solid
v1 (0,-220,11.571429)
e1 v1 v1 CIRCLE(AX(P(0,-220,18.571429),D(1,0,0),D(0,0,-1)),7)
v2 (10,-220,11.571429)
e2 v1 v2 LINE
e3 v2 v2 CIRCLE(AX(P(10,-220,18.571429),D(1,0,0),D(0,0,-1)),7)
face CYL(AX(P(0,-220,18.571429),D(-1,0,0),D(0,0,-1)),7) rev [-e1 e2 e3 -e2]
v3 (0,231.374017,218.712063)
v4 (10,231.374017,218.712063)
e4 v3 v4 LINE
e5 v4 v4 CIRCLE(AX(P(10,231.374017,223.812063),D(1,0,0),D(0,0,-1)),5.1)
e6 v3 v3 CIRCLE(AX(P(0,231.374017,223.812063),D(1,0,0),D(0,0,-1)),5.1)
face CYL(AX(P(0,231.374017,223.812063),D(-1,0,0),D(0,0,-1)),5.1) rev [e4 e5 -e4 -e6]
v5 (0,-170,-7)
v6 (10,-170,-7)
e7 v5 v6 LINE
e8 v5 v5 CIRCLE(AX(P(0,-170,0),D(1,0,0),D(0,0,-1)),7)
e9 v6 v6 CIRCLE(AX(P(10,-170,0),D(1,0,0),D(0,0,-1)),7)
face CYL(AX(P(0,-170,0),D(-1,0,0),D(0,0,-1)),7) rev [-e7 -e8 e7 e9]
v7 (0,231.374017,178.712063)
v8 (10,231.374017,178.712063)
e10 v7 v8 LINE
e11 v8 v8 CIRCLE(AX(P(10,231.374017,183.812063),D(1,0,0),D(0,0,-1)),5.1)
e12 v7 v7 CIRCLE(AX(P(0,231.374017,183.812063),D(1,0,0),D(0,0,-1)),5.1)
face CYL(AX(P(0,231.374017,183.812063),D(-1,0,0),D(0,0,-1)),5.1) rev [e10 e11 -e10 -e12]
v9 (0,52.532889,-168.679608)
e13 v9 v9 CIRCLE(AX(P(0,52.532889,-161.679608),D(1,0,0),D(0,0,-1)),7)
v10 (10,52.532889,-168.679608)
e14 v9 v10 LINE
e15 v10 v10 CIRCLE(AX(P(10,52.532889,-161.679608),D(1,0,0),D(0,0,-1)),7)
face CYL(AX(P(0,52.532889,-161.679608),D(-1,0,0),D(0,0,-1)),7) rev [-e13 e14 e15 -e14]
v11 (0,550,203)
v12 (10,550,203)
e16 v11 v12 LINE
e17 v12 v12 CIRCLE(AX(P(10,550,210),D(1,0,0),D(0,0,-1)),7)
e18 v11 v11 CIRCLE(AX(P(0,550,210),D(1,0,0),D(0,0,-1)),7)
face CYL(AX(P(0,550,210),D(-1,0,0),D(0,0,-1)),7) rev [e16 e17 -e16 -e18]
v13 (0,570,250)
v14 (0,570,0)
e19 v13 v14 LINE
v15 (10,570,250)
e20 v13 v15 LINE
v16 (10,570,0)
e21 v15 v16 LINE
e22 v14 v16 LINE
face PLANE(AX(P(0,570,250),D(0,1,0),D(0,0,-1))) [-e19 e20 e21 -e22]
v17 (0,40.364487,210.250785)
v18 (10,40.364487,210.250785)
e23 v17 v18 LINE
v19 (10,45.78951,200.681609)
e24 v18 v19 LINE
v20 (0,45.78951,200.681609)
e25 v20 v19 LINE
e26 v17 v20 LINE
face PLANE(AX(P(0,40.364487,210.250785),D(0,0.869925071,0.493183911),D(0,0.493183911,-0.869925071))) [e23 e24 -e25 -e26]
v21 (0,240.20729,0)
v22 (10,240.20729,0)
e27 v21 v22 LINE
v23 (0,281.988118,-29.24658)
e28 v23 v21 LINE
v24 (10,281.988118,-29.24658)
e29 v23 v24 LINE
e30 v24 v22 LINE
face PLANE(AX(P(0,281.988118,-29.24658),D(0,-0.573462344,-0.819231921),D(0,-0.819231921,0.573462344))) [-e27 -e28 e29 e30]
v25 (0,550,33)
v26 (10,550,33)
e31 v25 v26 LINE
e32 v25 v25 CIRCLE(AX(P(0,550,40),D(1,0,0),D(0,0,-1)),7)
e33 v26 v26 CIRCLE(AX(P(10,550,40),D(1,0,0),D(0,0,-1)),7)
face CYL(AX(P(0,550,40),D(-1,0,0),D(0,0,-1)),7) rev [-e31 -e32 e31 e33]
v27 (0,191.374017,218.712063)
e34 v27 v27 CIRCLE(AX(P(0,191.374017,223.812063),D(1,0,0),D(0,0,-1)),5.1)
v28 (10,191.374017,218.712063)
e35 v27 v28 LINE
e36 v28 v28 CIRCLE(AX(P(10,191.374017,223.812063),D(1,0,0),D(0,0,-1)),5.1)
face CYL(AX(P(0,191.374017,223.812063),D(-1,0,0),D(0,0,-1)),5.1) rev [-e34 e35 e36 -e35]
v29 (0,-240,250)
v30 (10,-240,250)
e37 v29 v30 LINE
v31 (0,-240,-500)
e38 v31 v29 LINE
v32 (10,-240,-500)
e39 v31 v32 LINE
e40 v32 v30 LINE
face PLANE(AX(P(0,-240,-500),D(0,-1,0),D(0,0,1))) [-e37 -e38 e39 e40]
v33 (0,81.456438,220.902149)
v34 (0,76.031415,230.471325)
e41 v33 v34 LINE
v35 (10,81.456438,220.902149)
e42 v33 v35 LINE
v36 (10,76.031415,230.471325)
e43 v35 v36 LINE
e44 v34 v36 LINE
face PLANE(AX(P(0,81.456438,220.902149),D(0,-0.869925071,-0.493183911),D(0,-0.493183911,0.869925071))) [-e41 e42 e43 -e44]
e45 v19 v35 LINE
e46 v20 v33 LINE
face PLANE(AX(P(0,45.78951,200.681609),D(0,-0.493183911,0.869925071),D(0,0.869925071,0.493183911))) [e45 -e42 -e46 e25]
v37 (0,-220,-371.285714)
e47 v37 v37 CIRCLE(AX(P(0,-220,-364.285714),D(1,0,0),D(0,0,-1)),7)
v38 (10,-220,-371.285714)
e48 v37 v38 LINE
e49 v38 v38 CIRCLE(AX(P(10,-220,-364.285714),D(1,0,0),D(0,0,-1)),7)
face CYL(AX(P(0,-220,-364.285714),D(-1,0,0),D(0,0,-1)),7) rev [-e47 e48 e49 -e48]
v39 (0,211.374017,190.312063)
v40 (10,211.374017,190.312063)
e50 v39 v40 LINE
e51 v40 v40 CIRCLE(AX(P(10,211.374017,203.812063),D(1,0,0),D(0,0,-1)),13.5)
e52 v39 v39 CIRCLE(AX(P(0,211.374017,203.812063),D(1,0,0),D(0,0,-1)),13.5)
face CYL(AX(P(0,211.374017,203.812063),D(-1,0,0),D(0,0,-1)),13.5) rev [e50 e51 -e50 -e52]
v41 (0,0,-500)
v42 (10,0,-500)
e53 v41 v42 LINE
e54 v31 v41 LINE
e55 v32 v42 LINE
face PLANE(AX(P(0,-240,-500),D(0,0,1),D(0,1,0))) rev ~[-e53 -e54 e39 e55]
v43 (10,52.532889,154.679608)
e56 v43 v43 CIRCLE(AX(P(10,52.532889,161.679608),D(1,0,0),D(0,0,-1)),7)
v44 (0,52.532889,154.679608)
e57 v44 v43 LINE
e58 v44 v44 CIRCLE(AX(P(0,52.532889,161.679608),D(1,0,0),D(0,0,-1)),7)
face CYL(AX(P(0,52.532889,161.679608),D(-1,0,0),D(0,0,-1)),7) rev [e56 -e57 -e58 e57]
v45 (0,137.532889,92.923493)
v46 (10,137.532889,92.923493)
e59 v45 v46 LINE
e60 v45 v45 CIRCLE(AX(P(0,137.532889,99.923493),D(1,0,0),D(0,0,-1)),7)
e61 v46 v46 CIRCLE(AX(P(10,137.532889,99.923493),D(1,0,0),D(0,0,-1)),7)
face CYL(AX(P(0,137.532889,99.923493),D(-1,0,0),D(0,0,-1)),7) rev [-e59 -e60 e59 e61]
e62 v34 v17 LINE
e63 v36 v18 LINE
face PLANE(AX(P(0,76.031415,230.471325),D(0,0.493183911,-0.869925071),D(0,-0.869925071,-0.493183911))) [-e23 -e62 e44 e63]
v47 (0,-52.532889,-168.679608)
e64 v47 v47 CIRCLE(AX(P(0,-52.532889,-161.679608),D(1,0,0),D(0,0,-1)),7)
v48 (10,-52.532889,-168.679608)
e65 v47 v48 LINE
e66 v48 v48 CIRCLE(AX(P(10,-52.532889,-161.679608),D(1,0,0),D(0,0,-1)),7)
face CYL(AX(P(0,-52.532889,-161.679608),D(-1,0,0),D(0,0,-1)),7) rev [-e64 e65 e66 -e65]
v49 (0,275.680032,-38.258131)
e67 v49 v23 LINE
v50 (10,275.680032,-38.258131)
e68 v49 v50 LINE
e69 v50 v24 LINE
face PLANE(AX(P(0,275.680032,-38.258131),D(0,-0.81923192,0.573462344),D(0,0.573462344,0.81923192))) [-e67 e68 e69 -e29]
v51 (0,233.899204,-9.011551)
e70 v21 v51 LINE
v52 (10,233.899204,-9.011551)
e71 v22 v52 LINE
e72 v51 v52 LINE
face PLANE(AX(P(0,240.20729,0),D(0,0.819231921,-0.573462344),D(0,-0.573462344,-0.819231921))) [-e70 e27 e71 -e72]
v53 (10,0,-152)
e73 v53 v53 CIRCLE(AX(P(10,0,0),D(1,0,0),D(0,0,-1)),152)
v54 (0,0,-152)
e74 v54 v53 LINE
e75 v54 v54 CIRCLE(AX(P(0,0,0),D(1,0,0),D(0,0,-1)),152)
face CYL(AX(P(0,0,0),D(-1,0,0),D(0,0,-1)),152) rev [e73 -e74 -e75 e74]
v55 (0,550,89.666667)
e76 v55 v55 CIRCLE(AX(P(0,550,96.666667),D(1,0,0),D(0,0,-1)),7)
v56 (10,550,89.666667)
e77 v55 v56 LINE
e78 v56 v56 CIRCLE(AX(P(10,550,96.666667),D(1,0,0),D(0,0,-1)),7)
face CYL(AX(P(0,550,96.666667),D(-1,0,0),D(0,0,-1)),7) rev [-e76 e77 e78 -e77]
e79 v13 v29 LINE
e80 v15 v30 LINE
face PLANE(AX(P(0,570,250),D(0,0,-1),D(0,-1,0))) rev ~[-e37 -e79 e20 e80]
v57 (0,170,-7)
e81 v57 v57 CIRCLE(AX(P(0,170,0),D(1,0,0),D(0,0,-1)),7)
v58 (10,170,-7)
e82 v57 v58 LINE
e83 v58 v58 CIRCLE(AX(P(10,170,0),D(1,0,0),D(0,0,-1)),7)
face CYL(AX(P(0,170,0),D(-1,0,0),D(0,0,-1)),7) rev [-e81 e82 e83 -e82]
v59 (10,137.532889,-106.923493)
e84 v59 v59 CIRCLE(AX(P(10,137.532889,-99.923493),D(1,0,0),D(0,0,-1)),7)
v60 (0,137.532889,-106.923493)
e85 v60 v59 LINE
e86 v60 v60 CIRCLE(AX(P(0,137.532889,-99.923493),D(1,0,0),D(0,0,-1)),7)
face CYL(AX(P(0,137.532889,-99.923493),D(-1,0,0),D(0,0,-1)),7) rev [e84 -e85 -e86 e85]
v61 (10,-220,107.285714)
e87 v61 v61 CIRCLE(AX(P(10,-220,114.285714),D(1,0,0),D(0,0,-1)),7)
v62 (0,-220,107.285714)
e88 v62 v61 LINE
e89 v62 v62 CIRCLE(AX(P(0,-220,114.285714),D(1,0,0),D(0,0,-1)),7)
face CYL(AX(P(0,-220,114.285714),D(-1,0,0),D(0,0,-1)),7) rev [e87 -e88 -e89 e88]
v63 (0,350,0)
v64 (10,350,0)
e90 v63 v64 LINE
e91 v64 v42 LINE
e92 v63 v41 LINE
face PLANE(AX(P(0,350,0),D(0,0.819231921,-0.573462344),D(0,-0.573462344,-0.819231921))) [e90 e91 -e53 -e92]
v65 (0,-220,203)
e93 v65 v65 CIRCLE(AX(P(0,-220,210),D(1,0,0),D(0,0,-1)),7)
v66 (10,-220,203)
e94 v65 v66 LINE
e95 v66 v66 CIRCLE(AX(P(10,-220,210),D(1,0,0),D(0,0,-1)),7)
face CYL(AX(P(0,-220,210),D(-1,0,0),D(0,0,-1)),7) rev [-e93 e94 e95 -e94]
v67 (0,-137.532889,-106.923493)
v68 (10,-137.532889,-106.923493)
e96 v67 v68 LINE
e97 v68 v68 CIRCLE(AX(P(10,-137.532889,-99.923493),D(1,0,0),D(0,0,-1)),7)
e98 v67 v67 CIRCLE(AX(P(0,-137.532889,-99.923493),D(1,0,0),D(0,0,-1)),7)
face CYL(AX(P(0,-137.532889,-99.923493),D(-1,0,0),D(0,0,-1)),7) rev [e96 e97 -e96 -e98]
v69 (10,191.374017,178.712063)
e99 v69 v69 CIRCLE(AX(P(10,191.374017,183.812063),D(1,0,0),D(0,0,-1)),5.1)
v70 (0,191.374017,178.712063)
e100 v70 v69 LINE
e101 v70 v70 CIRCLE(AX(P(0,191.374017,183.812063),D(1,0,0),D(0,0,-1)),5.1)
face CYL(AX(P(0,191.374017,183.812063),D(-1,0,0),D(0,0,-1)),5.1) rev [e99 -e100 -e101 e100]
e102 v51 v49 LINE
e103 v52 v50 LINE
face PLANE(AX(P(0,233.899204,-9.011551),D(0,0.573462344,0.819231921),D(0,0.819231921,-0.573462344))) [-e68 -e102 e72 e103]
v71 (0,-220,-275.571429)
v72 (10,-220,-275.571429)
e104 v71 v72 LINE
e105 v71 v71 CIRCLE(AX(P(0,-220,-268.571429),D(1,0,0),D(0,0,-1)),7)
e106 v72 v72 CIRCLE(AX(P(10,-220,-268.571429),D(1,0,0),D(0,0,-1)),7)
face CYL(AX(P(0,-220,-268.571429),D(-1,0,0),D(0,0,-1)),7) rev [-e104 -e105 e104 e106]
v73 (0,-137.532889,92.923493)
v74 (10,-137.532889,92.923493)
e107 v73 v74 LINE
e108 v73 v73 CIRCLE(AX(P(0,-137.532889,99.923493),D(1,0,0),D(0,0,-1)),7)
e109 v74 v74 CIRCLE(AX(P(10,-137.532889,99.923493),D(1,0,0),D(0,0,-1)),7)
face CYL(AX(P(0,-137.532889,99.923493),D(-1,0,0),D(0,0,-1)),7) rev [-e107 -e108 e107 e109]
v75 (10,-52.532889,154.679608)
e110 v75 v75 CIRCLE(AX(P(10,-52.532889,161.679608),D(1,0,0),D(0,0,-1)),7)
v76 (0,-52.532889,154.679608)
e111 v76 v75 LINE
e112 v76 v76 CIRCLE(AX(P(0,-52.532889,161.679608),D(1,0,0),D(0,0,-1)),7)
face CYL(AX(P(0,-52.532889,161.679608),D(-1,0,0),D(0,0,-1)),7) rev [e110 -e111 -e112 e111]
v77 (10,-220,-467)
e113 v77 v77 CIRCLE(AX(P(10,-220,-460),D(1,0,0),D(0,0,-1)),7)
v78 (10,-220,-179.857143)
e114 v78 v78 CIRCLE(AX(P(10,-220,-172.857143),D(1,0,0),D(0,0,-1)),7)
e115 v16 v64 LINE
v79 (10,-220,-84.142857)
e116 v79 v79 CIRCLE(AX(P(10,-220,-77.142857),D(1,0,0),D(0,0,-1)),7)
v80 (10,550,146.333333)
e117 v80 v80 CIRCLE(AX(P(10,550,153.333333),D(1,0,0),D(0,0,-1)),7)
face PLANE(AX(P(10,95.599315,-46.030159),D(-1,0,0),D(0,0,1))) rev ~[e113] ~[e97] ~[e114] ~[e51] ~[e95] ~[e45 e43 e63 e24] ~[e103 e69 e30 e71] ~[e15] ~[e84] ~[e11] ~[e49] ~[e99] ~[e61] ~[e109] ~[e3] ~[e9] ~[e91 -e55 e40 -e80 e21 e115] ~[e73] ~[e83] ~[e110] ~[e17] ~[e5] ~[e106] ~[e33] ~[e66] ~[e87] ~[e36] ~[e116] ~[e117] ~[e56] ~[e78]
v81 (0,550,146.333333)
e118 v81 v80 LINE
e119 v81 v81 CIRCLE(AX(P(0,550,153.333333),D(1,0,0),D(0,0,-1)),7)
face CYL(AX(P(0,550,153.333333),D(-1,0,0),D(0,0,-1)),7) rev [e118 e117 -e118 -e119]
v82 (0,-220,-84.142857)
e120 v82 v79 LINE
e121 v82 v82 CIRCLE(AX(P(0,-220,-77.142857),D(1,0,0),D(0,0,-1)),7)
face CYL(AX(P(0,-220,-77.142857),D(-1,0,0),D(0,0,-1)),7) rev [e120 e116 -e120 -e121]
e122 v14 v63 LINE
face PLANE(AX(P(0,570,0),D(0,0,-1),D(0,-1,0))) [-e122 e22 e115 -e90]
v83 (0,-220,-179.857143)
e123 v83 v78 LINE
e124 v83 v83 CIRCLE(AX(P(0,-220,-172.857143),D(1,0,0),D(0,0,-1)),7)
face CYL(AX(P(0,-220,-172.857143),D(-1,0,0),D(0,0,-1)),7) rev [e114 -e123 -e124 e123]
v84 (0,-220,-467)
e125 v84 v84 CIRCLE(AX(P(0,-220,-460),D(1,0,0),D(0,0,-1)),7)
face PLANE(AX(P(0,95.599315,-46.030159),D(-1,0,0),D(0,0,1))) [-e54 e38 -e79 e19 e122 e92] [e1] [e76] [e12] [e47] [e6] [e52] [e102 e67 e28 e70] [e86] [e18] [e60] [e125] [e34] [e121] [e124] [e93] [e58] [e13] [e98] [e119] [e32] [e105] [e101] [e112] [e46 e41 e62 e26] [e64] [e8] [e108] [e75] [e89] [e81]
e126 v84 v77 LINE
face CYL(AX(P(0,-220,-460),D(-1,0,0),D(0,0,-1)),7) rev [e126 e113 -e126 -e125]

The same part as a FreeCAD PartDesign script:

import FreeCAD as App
import Part
import Sketcher

V = App.Vector
Q = App.Units.Quantity


def add_polygon(sketch, points):
    """Adds a closed chain of lines whose ends are joined by coincident constraints."""
    first, n = sketch.GeometryCount, len(points)
    for a, b in zip(points, points[1:] + points[:1]):
        sketch.addGeometry(Part.LineSegment(App.Vector(*a, 0), App.Vector(*b, 0)), False)
    for i in range(n):
        sketch.addConstraint(Sketcher.Constraint("Coincident", first + i, 2, first + (i + 1) % n, 1))

doc = App.newDocument("Part")
body = doc.addObject("PartDesign::Body", "Body")

# Sketch on YZ plane
sketch1 = body.newObject("Sketcher::SketchObject", "Sketch")
sketch1.AttachmentSupport = (doc.getObject("YZ_Plane"), [""])
sketch1.MapMode = "FlatFace"
add_polygon(sketch1, [(570, 250), (-240, 250), (-240, -500), (0, -500), (350, 0), (570, 0)])  # lines 0-5
sketch1.addGeometry(Part.Circle(V(-220, -460, 0), V(0, 0, 1), 7), False)  # 6
sketch1.addGeometry(Part.Circle(V(-220, -364.285714, 0), V(0, 0, 1), 7), False)  # 7
sketch1.addGeometry(Part.Circle(V(-220, -268.571429, 0), V(0, 0, 1), 7), False)  # 8
sketch1.addGeometry(Part.Circle(V(-220, -172.857143, 0), V(0, 0, 1), 7), False)  # 9
sketch1.addGeometry(Part.Circle(V(-52.532889, -161.679608, 0), V(0, 0, 1), 7), False)  # 10
sketch1.addGeometry(Part.Circle(V(52.532889, -161.679608, 0), V(0, 0, 1), 7), False)  # 11
sketch1.addGeometry(Part.Circle(V(-220, -77.142857, 0), V(0, 0, 1), 7), False)  # 12
sketch1.addGeometry(Part.Circle(V(-137.532889, -99.923493, 0), V(0, 0, 1), 7), False)  # 13
sketch1.addGeometry(Part.Circle(V(-220, 18.571429, 0), V(0, 0, 1), 7), False)  # 14
sketch1.addGeometry(Part.Circle(V(-170, 0, 0), V(0, 0, 1), 7), False)  # 15
sketch1.addGeometry(Part.Circle(V(-220, 114.285714, 0), V(0, 0, 1), 7), False)  # 16
sketch1.addGeometry(Part.Circle(V(-137.532889, 99.923493, 0), V(0, 0, 1), 7), False)  # 17
sketch1.addGeometry(Part.Circle(V(-220, 210, 0), V(0, 0, 1), 7), False)  # 18
sketch1.addGeometry(Part.Circle(V(-52.532889, 161.679608, 0), V(0, 0, 1), 7), False)  # 19
sketch1.addGeometry(Part.Circle(V(0, 0, 0), V(0, 0, 1), 152), False)  # 20
sketch1.addGeometry(Part.Circle(V(137.532889, -99.923493, 0), V(0, 0, 1), 7), False)  # 21
sketch1.addGeometry(Part.Circle(V(52.532889, 161.679608, 0), V(0, 0, 1), 7), False)  # 22
add_polygon(sketch1, [(45.78951, 200.681609), (40.364487, 210.250785), (76.031415, 230.471325), (81.456438, 220.902149)])  # lines 23-26
sketch1.addGeometry(Part.Circle(V(137.532889, 99.923493, 0), V(0, 0, 1), 7), False)  # 27
sketch1.addGeometry(Part.Circle(V(170, 0, 0), V(0, 0, 1), 7), False)  # 28
add_polygon(sketch1, [(281.988118, -29.24658), (275.680032, -38.258131), (233.899204, -9.011551), (240.20729, 0)])  # lines 29-32
sketch1.addGeometry(Part.Circle(V(191.374017, 183.812063, 0), V(0, 0, 1), 5.1), False)  # 33
sketch1.addGeometry(Part.Circle(V(211.374017, 203.812063, 0), V(0, 0, 1), 13.5), False)  # 34
sketch1.addGeometry(Part.Circle(V(191.374017, 223.812063, 0), V(0, 0, 1), 5.1), False)  # 35
sketch1.addGeometry(Part.Circle(V(231.374017, 183.812063, 0), V(0, 0, 1), 5.1), False)  # 36
sketch1.addGeometry(Part.Circle(V(231.374017, 223.812063, 0), V(0, 0, 1), 5.1), False)  # 37
sketch1.addGeometry(Part.Circle(V(550, 40, 0), V(0, 0, 1), 7), False)  # 38
sketch1.addGeometry(Part.Circle(V(550, 96.666667, 0), V(0, 0, 1), 7), False)  # 39
sketch1.addGeometry(Part.Circle(V(550, 153.333333, 0), V(0, 0, 1), 7), False)  # 40
sketch1.addGeometry(Part.Circle(V(550, 210, 0), V(0, 0, 1), 7), False)  # 41
sketch1.addConstraint(Sketcher.Constraint("Horizontal", 0))
sketch1.addConstraint(Sketcher.Constraint("Vertical", 1))
sketch1.addConstraint(Sketcher.Constraint("Horizontal", 2))
sketch1.addConstraint(Sketcher.Constraint("Horizontal", 4))
sketch1.addConstraint(Sketcher.Constraint("Vertical", 5))
sketch1.addConstraint(Sketcher.Constraint("Coincident", 20, 3, -1, 1))
sketch1.addConstraint(Sketcher.Constraint("Equal", 6, 7))
sketch1.addConstraint(Sketcher.Constraint("Equal", 7, 8))
sketch1.addConstraint(Sketcher.Constraint("Equal", 8, 9))
sketch1.addConstraint(Sketcher.Constraint("Equal", 9, 10))
sketch1.addConstraint(Sketcher.Constraint("Equal", 10, 11))
sketch1.addConstraint(Sketcher.Constraint("Equal", 11, 12))
sketch1.addConstraint(Sketcher.Constraint("Equal", 12, 13))
sketch1.addConstraint(Sketcher.Constraint("Equal", 13, 14))
sketch1.addConstraint(Sketcher.Constraint("Equal", 14, 15))
sketch1.addConstraint(Sketcher.Constraint("Equal", 15, 16))
sketch1.addConstraint(Sketcher.Constraint("Equal", 16, 17))
sketch1.addConstraint(Sketcher.Constraint("Equal", 17, 18))
sketch1.addConstraint(Sketcher.Constraint("Equal", 18, 19))
sketch1.addConstraint(Sketcher.Constraint("Equal", 19, 21))
sketch1.addConstraint(Sketcher.Constraint("Equal", 21, 22))
sketch1.addConstraint(Sketcher.Constraint("Equal", 22, 27))
sketch1.addConstraint(Sketcher.Constraint("Equal", 27, 28))
sketch1.addConstraint(Sketcher.Constraint("Equal", 33, 35))
sketch1.addConstraint(Sketcher.Constraint("Equal", 35, 36))
sketch1.addConstraint(Sketcher.Constraint("Equal", 36, 37))
sketch1.addConstraint(Sketcher.Constraint("Equal", 28, 38))
sketch1.addConstraint(Sketcher.Constraint("Equal", 38, 39))
sketch1.addConstraint(Sketcher.Constraint("Equal", 39, 40))
sketch1.addConstraint(Sketcher.Constraint("Equal", 40, 41))
sketch1.addConstraint(Sketcher.Constraint("Symmetric", 11, 3, 19, 3, -1, 1))
sketch1.addConstraint(Sketcher.Constraint("Symmetric", 17, 3, 21, 3, -1, 1))
sketch1.addConstraint(Sketcher.Constraint("Symmetric", 10, 3, 22, 3, -1, 1))
sketch1.addConstraint(Sketcher.Constraint("Symmetric", 13, 3, 27, 3, -1, 1))
sketch1.addConstraint(Sketcher.Constraint("Symmetric", 15, 3, 28, 3, -1, 1))
sketch1.addConstraint(Sketcher.Constraint("Symmetric", 10, 3, 11, 3, -2))
sketch1.addConstraint(Sketcher.Constraint("Symmetric", 13, 3, 21, 3, -2))
sketch1.addConstraint(Sketcher.Constraint("PointOnObject", 15, 3, -1))
sketch1.addConstraint(Sketcher.Constraint("PointOnObject", 2, 2, -2))
sketch1.addConstraint(Sketcher.Constraint("PointOnObject", 3, 2, -1))
sketch1.addConstraint(Sketcher.Constraint("PointOnObject", 31, 2, -1))
sketch1.addConstraint(Sketcher.Constraint("Perpendicular", 23, 24))
sketch1.addConstraint(Sketcher.Constraint("Perpendicular", 24, 25))
sketch1.addConstraint(Sketcher.Constraint("Perpendicular", 25, 26))
sketch1.addConstraint(Sketcher.Constraint("Parallel", 3, 29))
sketch1.addConstraint(Sketcher.Constraint("Perpendicular", 29, 30))
sketch1.addConstraint(Sketcher.Constraint("Perpendicular", 30, 31))
sketch1.addConstraint(Sketcher.Constraint("Perpendicular", 31, 32))
sketch1.addConstraint(Sketcher.Constraint("Horizontal", 33, 3, 36, 3))
sketch1.addConstraint(Sketcher.Constraint("Horizontal", 35, 3, 37, 3))
sketch1.addConstraint(Sketcher.Constraint("Horizontal", 18, 3, 41, 3))
sketch1.addConstraint(Sketcher.Constraint("Vertical", 6, 3, 7, 3))
sketch1.addConstraint(Sketcher.Constraint("Vertical", 7, 3, 8, 3))
sketch1.addConstraint(Sketcher.Constraint("Vertical", 8, 3, 9, 3))
sketch1.addConstraint(Sketcher.Constraint("Vertical", 9, 3, 12, 3))
sketch1.addConstraint(Sketcher.Constraint("Vertical", 12, 3, 14, 3))
sketch1.addConstraint(Sketcher.Constraint("Vertical", 14, 3, 16, 3))
sketch1.addConstraint(Sketcher.Constraint("Vertical", 16, 3, 18, 3))
sketch1.addConstraint(Sketcher.Constraint("Vertical", 33, 3, 35, 3))
sketch1.addConstraint(Sketcher.Constraint("Vertical", 36, 3, 37, 3))
sketch1.addConstraint(Sketcher.Constraint("Vertical", 38, 3, 39, 3))
sketch1.addConstraint(Sketcher.Constraint("Vertical", 39, 3, 40, 3))
sketch1.addConstraint(Sketcher.Constraint("Vertical", 40, 3, 41, 3))
sketch1.addConstraint(Sketcher.Constraint("Equal", 25, 29))
sketch1.addConstraint(Sketcher.Constraint("Diameter", 6, Q("14 mm")))
sketch1.addConstraint(Sketcher.Constraint("Diameter", 20, Q("304 mm")))
sketch1.addConstraint(Sketcher.Constraint("Diameter", 34, Q("27 mm")))
sketch1.addConstraint(Sketcher.Constraint("Diameter", 33, Q("10.2 mm")))
sketch1.addConstraint(Sketcher.Constraint("DistanceX", 0, 2, 0, 1, Q("810 mm")))
sketch1.addConstraint(Sketcher.Constraint("DistanceX", 2, 1, 2, 2, Q("240 mm")))
sketch1.addConstraint(Sketcher.Constraint("DistanceX", 4, 1, 4, 2, Q("220 mm")))
sketch1.addConstraint(Sketcher.Constraint("DistanceY", 1, 2, 1, 1, Q("750 mm")))
sketch1.addConstraint(Sketcher.Constraint("DistanceY", 5, 1, 5, 2, Q("250 mm")))
sketch1.addConstraint(Sketcher.Constraint("Distance", 23, Q("11 mm")))
sketch1.addConstraint(Sketcher.Constraint("Distance", 24, Q("41 mm")))
sketch1.addConstraint(Sketcher.Constraint("Distance", 30, Q("51 mm")))
sketch1.addConstraint(Sketcher.Constraint("DistanceX", 6, 3, -1, 1, Q("220 mm")))
sketch1.addConstraint(Sketcher.Constraint("DistanceY", 6, 3, -1, 1, Q("460 mm")))
sketch1.addConstraint(Sketcher.Constraint("DistanceX", 15, 3, -1, 1, Q("170 mm")))
sketch1.addConstraint(Sketcher.Constraint("DistanceY", -1, 1, 18, 3, Q("210 mm")))
sketch1.addConstraint(Sketcher.Constraint("DistanceX", -1, 1, 38, 3, Q("550 mm")))
sketch1.addConstraint(Sketcher.Constraint("DistanceY", -1, 1, 38, 3, Q("40 mm")))
sketch1.addConstraint(Sketcher.Constraint("DistanceX", 13, 3, 10, 3, Q("85 mm")))
sketch1.addConstraint(Sketcher.Constraint("DistanceX", 33, 3, 34, 3, Q("20 mm")))
sketch1.addConstraint(Sketcher.Constraint("DistanceY", 33, 3, 34, 3, Q("20 mm")))
sketch1.addConstraint(Sketcher.Constraint("DistanceY", 34, 3, 35, 3, Q("20 mm")))
sketch1.addConstraint(Sketcher.Constraint("DistanceX", 34, 3, 36, 3, Q("20 mm")))
sketch1.addConstraint(Sketcher.Constraint("DistanceY", 22, 3, 26, 2, Q("39.002001 mm")))
sketch1.addConstraint(Sketcher.Constraint("DistanceY", 21, 3, 22, 3, Q("261.603101 mm")))
sketch1.addConstraint(Sketcher.Constraint("DistanceX", 24, 2, 35, 3, Q("115.342602 mm")))
sketch1.addConstraint(Sketcher.Constraint("DistanceX", 19, 3, 26, 2, Q("98.322399 mm")))
sketch1.addConstraint(Sketcher.Constraint("DistanceX", 21, 3, 31, 2, Q("102.674401 mm")))
sketch1.addConstraint(Sketcher.Constraint("DistanceY", 8, 3, -1, 1, Q("268.571429 mm")))
sketch1.addConstraint(Sketcher.Constraint("DistanceX", 10, 3, -1, 1, Q("52.532889 mm")))
sketch1.addConstraint(Sketcher.Constraint("DistanceY", -1, 1, 14, 3, Q("18.571429 mm")))
sketch1.addConstraint(Sketcher.Constraint("DistanceY", -1, 1, 25, 2, Q("220.902149 mm")))
sketch1.addConstraint(Sketcher.Constraint("DistanceY", -1, 1, 26, 2, Q("200.681609 mm")))
sketch1.addConstraint(Sketcher.Constraint("DistanceY", 7, 3, 9, 3, Q("191.428571 mm")))
sketch1.addConstraint(Sketcher.Constraint("DistanceY", 10, 3, 12, 3, Q("84.536751 mm")))
sketch1.addConstraint(Sketcher.Constraint("DistanceY", 9, 3, 13, 3, Q("72.93365 mm")))
sketch1.addConstraint(Sketcher.Constraint("DistanceY", 12, 3, 16, 3, Q("191.428571 mm")))
sketch1.addConstraint(Sketcher.Constraint("DistanceY", 27, 3, 33, 3, Q("83.88857 mm")))
sketch1.addConstraint(Sketcher.Constraint("DistanceY", 40, 3, 36, 3, Q("30.478729 mm")))
sketch1.addConstraint(Sketcher.Constraint("DistanceY", -1, 1, 39, 3, Q("96.666667 mm")))
pad1 = body.newObject("PartDesign::Pad", "Pad")
pad1.Profile = sketch1
pad1.Length = 10

doc.recompute()
